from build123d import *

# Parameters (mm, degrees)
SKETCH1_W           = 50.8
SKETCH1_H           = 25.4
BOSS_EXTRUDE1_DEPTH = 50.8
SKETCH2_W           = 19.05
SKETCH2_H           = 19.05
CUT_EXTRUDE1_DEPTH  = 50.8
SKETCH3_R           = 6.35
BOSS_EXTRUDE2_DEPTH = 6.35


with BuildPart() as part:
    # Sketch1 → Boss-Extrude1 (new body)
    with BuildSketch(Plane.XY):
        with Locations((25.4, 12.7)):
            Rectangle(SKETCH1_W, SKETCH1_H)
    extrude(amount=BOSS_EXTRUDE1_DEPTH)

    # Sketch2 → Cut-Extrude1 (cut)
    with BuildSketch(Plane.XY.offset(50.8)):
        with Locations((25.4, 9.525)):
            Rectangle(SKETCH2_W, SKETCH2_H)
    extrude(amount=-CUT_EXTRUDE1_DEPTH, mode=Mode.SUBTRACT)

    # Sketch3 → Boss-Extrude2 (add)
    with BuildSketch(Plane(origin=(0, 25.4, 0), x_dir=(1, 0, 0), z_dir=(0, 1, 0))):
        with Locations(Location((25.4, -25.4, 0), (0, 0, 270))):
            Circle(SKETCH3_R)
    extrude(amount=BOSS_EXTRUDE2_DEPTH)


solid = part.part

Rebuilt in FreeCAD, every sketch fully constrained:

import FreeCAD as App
import Part
import Sketcher

V = App.Vector
Q = App.Units.Quantity

doc = App.newDocument("Part")
body = doc.addObject("PartDesign::Body", "Body")

sketch1 = body.newObject("Sketcher::SketchObject", "Sketch")
sketch1.AttachmentSupport = (doc.getObject("XY_Plane"), [""])
sketch1.MapMode = "FlatFace"
sketch1.addGeometry([
    Part.LineSegment(V(0, 25, 0), V(0, 0, 0)),
    Part.LineSegment(V(0, 0, 0), V(51, 0, 0)),
    Part.LineSegment(V(51, 0, 0), V(51, 25, 0)),
    Part.LineSegment(V(51, 25, 0), V(0, 25, 0)),
], False)
sketch1.addConstraint([
    Sketcher.Constraint("Coincident", 0, 2, 1, 1),
    Sketcher.Constraint("Coincident", 1, 2, 2, 1),
    Sketcher.Constraint("Coincident", 2, 2, 3, 1),
    Sketcher.Constraint("Coincident", 3, 2, 0, 1),
    Sketcher.Constraint("Vertical", 0),
    Sketcher.Constraint("Horizontal", 1),
    Sketcher.Constraint("Vertical", 2),
    Sketcher.Constraint("Horizontal", 3),
    Sketcher.Constraint("Coincident", 0, 2, -1, 1),
    Sketcher.Constraint("DistanceX", 1, 1, 1, 2, Q("2 in")),
    Sketcher.Constraint("DistanceY", 0, 2, 0, 1, Q("1 in")),
])
pad1 = body.newObject("PartDesign::Pad", "Pad")
pad1.Profile = sketch1
pad1.Length = Q("2 in")

sketch2 = body.newObject("Sketcher::SketchObject", "Sketch001")
sketch2.AttachmentSupport = (doc.getObject("XY_Plane"), [""])
sketch2.MapMode = "FlatFace"
sketch2.AttachmentOffset = App.Placement(V(0, 0, 2 * 25.4), App.Rotation())
sketch2.addGeometry([
    Part.LineSegment(V(16, 19, 0), V(16, 0, 0)),
    Part.LineSegment(V(16, 0, 0), V(35, 0, 0)),
    Part.LineSegment(V(35, 0, 0), V(35, 19, 0)),
    Part.LineSegment(V(35, 19, 0), V(16, 19, 0)),
], False)
sketch2.addConstraint([
    Sketcher.Constraint("Coincident", 0, 2, 1, 1),
    Sketcher.Constraint("Coincident", 1, 2, 2, 1),
    Sketcher.Constraint("Coincident", 2, 2, 3, 1),
    Sketcher.Constraint("Coincident", 3, 2, 0, 1),
    Sketcher.Constraint("Vertical", 0),
    Sketcher.Constraint("Horizontal", 1),
    Sketcher.Constraint("Vertical", 2),
    Sketcher.Constraint("Horizontal", 3),
    Sketcher.Constraint("PointOnObject", 0, 2, -1),
    Sketcher.Constraint("Equal", 3, 0),
    Sketcher.Constraint("DistanceX", 1, 1, 1, 2, Q("0.75 in")),
    Sketcher.Constraint("DistanceX", -1, 1, 0, 2, Q("0.625 in")),
])
pocket1 = body.newObject("PartDesign::Pocket", "Pocket")
pocket1.Profile = sketch2
pocket1.Length = Q("2 in")

sketch3 = body.newObject("Sketcher::SketchObject", "Sketch002")
sketch3.AttachmentSupport = (doc.getObject("XZ_Plane"), [""])
sketch3.MapMode = "FlatFace"
sketch3.AttachmentOffset = App.Placement(V(0, 0, -1 * 25.4), App.Rotation())
sketch3.addGeometry(Part.Circle(V(25, 25, 0), V(0, 0, 1), 6), False)
sketch3.addConstraint([
    Sketcher.Constraint("Diameter", 0, Q("0.5 in")),
    Sketcher.Constraint("DistanceX", -1, 1, 0, 3, Q("1 in")),
    Sketcher.Constraint("DistanceY", -1, 1, 0, 3, Q("1 in")),
])
pad2 = body.newObject("PartDesign::Pad", "Pad001")
pad2.Profile = sketch3
pad2.Length = Q("0.25 in")
pad2.Reversed = True

doc.recompute()
